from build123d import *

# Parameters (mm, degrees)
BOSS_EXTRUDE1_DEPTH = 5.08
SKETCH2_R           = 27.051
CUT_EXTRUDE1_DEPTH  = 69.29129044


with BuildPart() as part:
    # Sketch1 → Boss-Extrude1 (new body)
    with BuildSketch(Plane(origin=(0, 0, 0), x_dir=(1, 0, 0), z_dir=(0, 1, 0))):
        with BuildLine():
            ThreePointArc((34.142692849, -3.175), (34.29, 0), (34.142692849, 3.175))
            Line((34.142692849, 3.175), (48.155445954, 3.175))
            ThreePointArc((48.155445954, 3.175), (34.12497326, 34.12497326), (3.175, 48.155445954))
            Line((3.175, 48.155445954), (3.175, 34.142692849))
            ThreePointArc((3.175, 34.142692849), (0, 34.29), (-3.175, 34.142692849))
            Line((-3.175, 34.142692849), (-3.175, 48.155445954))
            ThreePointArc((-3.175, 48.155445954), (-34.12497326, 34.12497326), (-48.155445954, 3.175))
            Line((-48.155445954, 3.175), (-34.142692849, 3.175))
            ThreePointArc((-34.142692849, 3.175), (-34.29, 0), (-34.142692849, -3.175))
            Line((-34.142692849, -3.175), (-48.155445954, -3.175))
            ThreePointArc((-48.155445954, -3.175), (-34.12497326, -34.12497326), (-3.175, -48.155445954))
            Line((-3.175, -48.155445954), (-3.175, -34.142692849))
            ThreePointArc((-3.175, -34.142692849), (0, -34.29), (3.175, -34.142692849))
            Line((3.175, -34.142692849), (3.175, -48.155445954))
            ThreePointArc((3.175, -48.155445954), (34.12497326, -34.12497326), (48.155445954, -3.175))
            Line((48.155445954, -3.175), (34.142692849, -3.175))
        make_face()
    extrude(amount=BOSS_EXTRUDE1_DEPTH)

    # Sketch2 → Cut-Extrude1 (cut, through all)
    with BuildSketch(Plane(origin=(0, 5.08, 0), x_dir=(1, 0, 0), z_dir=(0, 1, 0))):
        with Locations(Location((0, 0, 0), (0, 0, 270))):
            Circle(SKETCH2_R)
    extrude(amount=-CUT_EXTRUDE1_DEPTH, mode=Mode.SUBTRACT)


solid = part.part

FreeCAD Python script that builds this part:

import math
import FreeCAD as App
import Part
import Sketcher
Q = App.Units.Quantity

doc = App.newDocument("Part")
body = doc.addObject("PartDesign::Body", "Body")

sketch1 = doc.addObject("Sketcher::SketchObject", "Sketch")
body.addObject(sketch1)
sketch1.AttachmentSupport = (doc.XZ_Plane, [""])
sketch1.MapMode = "FlatFace"
sketch1.addGeometry([
    Part.ArcOfCircle(Part.Circle(App.Vector(0, 0, 0), App.Vector(0, 0, 1), 34), math.radians(-5.31), math.radians(5.31)),
    Part.LineSegment(App.Vector(34, -3, 0), App.Vector(48, -3, 0)),
    Part.ArcOfCircle(Part.Circle(App.Vector(0, 0, 0), App.Vector(0, 0, 1), 48), math.radians(-86), math.radians(-4)),
    Part.LineSegment(App.Vector(3, -48, 0), App.Vector(3, -34, 0)),
    Part.ArcOfCircle(Part.Circle(App.Vector(0, 0, 0), App.Vector(0, 0, 1), 34), math.radians(-95.31), math.radians(-84.69)),
    Part.LineSegment(App.Vector(-3, -34, 0), App.Vector(-3, -48, 0)),
    Part.ArcOfCircle(Part.Circle(App.Vector(0, 0, 0), App.Vector(0, 0, 1), 48), math.radians(-176), math.radians(-94)),
    Part.LineSegment(App.Vector(-48, -3, 0), App.Vector(-34, -3, 0)),
    Part.ArcOfCircle(Part.Circle(App.Vector(0, 0, 0), App.Vector(0, 0, 1), 34), math.radians(174.69), math.radians(185.31)),
    Part.LineSegment(App.Vector(-34, 3, 0), App.Vector(-48, 3, 0)),
    Part.ArcOfCircle(Part.Circle(App.Vector(0, 0, 0), App.Vector(0, 0, 1), 48), math.radians(94), math.radians(176)),
    Part.LineSegment(App.Vector(-3, 48, 0), App.Vector(-3, 34, 0)),
    Part.ArcOfCircle(Part.Circle(App.Vector(0, 0, 0), App.Vector(0, 0, 1), 34), math.radians(84.69), math.radians(95.31)),
    Part.LineSegment(App.Vector(3, 34, 0), App.Vector(3, 48, 0)),
    Part.ArcOfCircle(Part.Circle(App.Vector(0, 0, 0), App.Vector(0, 0, 1), 48), math.radians(4), math.radians(86)),
    Part.LineSegment(App.Vector(48, 3, 0), App.Vector(34, 3, 0)),
], False)
sketch1.addConstraint([
    Sketcher.Constraint("Coincident", 0, 1, 1, 1),
    Sketcher.Constraint("Coincident", 1, 2, 2, 2),
    Sketcher.Constraint("Coincident", 2, 1, 3, 1),
    Sketcher.Constraint("Coincident", 3, 2, 4, 2),
    Sketcher.Constraint("Coincident", 4, 1, 5, 1),
    Sketcher.Constraint("Coincident", 5, 2, 6, 2),
    Sketcher.Constraint("Coincident", 6, 1, 7, 1),
    Sketcher.Constraint("Coincident", 7, 2, 8, 2),
    Sketcher.Constraint("Coincident", 8, 1, 9, 1),
    Sketcher.Constraint("Coincident", 9, 2, 10, 2),
    Sketcher.Constraint("Coincident", 10, 1, 11, 1),
    Sketcher.Constraint("Coincident", 11, 2, 12, 2),
    Sketcher.Constraint("Coincident", 12, 1, 13, 1),
    Sketcher.Constraint("Coincident", 13, 2, 14, 2),
    Sketcher.Constraint("Coincident", 14, 1, 15, 1),
    Sketcher.Constraint("Coincident", 15, 2, 0, 2),
    Sketcher.Constraint("Horizontal", 1),
    Sketcher.Constraint("Vertical", 3),
    Sketcher.Constraint("Vertical", 5),
    Sketcher.Constraint("Horizontal", 7),
    Sketcher.Constraint("Horizontal", 9),
    Sketcher.Constraint("Vertical", 11),
    Sketcher.Constraint("Vertical", 13),
    Sketcher.Constraint("Horizontal", 15),
    Sketcher.Constraint("Coincident", 0, 3, -1, 1),
    Sketcher.Constraint("Coincident", 2, 3, -1, 1),
    Sketcher.Constraint("Coincident", 4, 3, -1, 1),
    Sketcher.Constraint("Coincident", 6, 3, -1, 1),
    Sketcher.Constraint("Coincident", 8, 3, -1, 1),
    Sketcher.Constraint("Coincident", 10, 3, -1, 1),
    Sketcher.Constraint("Coincident", 12, 3, -1, 1),
    Sketcher.Constraint("Coincident", 14, 3, -1, 1),
    Sketcher.Constraint("Equal", 0, 4),
    Sketcher.Constraint("Equal", 2, 6),
    Sketcher.Constraint("Equal", 4, 8),
    Sketcher.Constraint("Equal", 6, 10),
    Sketcher.Constraint("Equal", 8, 12),
    Sketcher.Constraint("Equal", 10, 14),
    Sketcher.Constraint("Horizontal", 3, 2, 4, 1),
    Sketcher.Constraint("Horizontal", 1, 2, 6, 1),
    Sketcher.Constraint("Horizontal", 11, 2, 12, 1),
    Sketcher.Constraint("Horizontal", 9, 2, 14, 1),
    Sketcher.Constraint("Vertical", 7, 2, 8, 1),
    Sketcher.Constraint("Vertical", 5, 2, 10, 1),
    Sketcher.Constraint("Equal", 15, 3),
    Sketcher.Constraint("Radius", 2, Q("1.9 in")),
    Sketcher.Constraint("Radius", 0, Q("1.35 in")),
    Sketcher.Constraint("DistanceX", 4, 1, 3, 2, Q("0.25 in")),
])
pad1 = doc.addObject("PartDesign::Pad", "Pad")
body.addObject(pad1)
pad1.Profile = sketch1
pad1.Length = Q("0.2 in")
pad1.Reversed = True

sketch2 = doc.addObject("Sketcher::SketchObject", "Sketch001")
body.addObject(sketch2)
sketch2.AttachmentSupport = (doc.XZ_Plane, [""])
sketch2.MapMode = "FlatFace"
sketch2.AttachmentOffset = App.Placement(App.Vector(0, 0, -0.2 * 25.4), App.Rotation())
sketch2.addGeometry(Part.Circle(App.Vector(0, 0, 0), App.Vector(0, 0, 1), 27), False)
sketch2.addConstraint([
    Sketcher.Constraint("Coincident", 0, 3, -1, 1),
    Sketcher.Constraint("Diameter", 0, Q("2.13 in")),
])
pocket1 = doc.addObject("PartDesign::Pocket", "Pocket")
body.addObject(pocket1)
pocket1.Profile = sketch2
pocket1.Type = "ThroughAll"
pocket1.Reversed = True

doc.recompute()
